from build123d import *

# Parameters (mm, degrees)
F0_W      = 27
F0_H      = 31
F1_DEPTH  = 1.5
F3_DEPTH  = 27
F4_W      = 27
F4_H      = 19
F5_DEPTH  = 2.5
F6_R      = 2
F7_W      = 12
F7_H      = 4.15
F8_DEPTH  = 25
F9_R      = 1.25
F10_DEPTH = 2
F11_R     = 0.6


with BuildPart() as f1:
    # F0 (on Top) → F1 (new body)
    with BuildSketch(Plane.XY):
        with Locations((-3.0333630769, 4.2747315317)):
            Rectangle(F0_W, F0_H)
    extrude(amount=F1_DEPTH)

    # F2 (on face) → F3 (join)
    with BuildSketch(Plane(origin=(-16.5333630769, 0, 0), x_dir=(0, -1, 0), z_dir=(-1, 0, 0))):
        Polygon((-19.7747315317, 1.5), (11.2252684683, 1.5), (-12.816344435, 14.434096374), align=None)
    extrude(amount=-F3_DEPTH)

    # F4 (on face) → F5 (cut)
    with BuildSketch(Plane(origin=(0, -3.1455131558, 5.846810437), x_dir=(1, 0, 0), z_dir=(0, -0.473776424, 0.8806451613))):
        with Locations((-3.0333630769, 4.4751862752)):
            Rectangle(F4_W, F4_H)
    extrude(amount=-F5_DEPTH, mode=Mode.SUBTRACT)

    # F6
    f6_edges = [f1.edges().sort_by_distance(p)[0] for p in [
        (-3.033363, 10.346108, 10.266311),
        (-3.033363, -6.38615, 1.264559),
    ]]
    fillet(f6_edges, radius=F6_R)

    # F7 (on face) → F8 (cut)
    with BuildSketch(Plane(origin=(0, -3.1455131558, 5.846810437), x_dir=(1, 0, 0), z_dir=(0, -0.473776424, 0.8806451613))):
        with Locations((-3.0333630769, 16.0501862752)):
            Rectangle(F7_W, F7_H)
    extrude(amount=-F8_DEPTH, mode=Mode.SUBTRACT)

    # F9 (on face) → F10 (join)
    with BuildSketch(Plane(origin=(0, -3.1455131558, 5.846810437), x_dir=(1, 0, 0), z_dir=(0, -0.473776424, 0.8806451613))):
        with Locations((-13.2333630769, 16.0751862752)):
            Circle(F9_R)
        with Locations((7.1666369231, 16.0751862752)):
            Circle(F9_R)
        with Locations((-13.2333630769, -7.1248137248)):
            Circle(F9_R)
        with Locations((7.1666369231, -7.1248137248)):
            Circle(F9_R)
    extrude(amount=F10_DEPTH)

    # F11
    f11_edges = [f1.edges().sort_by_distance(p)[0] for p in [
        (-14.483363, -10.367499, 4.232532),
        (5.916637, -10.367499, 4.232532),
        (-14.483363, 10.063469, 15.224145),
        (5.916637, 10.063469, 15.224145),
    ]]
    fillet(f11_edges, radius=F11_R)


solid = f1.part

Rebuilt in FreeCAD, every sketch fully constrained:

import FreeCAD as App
import Part
import Sketcher
from FreeCAD import Vector
Q = App.Units.Quantity


def edges_at(feature, points):
    """Names of the edges that pass closest to the given points."""
    edges = feature.Shape.Edges
    near = lambda p: min(range(len(edges)), key=lambda i: edges[i].distToShape(Part.Vertex(*p))[0])
    return sorted({f"Edge{near(p) + 1}" for p in points})

doc = App.newDocument("Part")
params = doc.addObject("Spreadsheet::Sheet", "Params")
for row, (alias, value) in enumerate([
    ("sketch1_width", "27 mm"),
    ("sketch1_height", "31 mm"),
    ("pad1_length", "1.5 mm"),
    ("sketch2_width", "31 mm"),
    ("sketch2_length", "27.3 mm"),
    ("pad2_length", "27 mm"),
    ("sketch3_width", "27 mm"),
    ("sketch3_height", "19 mm"),
    ("pocket1_length", "2.5 mm"),
    ("fillet_radius", "2 mm"),
    ("sketch4_width", "12 mm"),
    ("sketch4_height", "4.15 mm"),
    ("pocket2_length", "25 mm"),
    ("sketch5_diameter", "2.5 mm"),
    ("pad3_length", "2 mm"),
    ("fillet2_radius", "0.6 mm"),
], start=1):
    params.set(f"A{row}", alias)
    params.set(f"B{row}", "=" + value)
    params.setAlias(f"B{row}", alias)

body = doc.addObject("PartDesign::Body", "Body")

# Sketch on XY plane
sketch1 = body.newObject("Sketcher::SketchObject", "Sketch")
sketch1.AttachmentSupport = (doc.getObject("XY_Plane"), [""])
sketch1.MapMode = "FlatFace"
sketch1.addGeometry([
    Part.LineSegment(Vector(-17, 20, 0), Vector(-17, -11, 0)),
    Part.LineSegment(Vector(-17, -11, 0), Vector(10, -11, 0)),
    Part.LineSegment(Vector(10, -11, 0), Vector(10, 20, 0)),
    Part.LineSegment(Vector(10, 20, 0), Vector(-17, 20, 0)),
], False)
sketch1.addConstraint([
    Sketcher.Constraint("Coincident", 0, 2, 1, 1),
    Sketcher.Constraint("Coincident", 1, 2, 2, 1),
    Sketcher.Constraint("Coincident", 2, 2, 3, 1),
    Sketcher.Constraint("Coincident", 3, 2, 0, 1),
    Sketcher.Constraint("Vertical", 0),
    Sketcher.Constraint("Horizontal", 1),
    Sketcher.Constraint("Vertical", 2),
    Sketcher.Constraint("Horizontal", 3),
    Sketcher.Constraint("DistanceX", 1, 1, 1, 2, Q("27 mm")),
    Sketcher.Constraint("DistanceY", 0, 2, 0, 1, Q("31 mm")),
    Sketcher.Constraint("DistanceY", 0, 2, -1, 1, Q("11.225268 mm")),
    Sketcher.Constraint("DistanceX", 0, 2, -1, 1, Q("16.533363 mm")),
])
sketch1.setExpression("Constraints[8]", "Params.sketch1_width")
sketch1.setExpression("Constraints[9]", "Params.sketch1_height")
pad1 = body.newObject("PartDesign::Pad", "Pad")
pad1.Profile = sketch1
pad1.setExpression("Length", "Params.pad1_length")

# Sketch on YZ plane
sketch2 = body.newObject("Sketcher::SketchObject", "Sketch001")
sketch2.AttachmentSupport = (doc.getObject("YZ_Plane"), [""])
sketch2.MapMode = "FlatFace"
sketch2.AttachmentOffset = App.Placement(Vector(0, 0, -16.533363), App.Rotation())
sketch2.addGeometry([
    Part.LineSegment(Vector(20, 2, 0), Vector(-11, 2, 0)),
    Part.LineSegment(Vector(-11, 2, 0), Vector(13, 14, 0)),
    Part.LineSegment(Vector(13, 14, 0), Vector(20, 2, 0)),
], False)
sketch2.addConstraint([
    Sketcher.Constraint("Coincident", 0, 2, 1, 1),
    Sketcher.Constraint("Coincident", 1, 2, 2, 1),
    Sketcher.Constraint("Coincident", 2, 2, 0, 1),
    Sketcher.Constraint("Horizontal", 0),
    Sketcher.Constraint("Perpendicular", 1, 2),
    Sketcher.Constraint("DistanceX", 0, 2, 0, 1, Q("31 mm")),
    Sketcher.Constraint("Distance", 1, Q("27.3 mm")),
    Sketcher.Constraint("DistanceY", -1, 1, 0, 2, Q("1.5 mm")),
    Sketcher.Constraint("DistanceX", 0, 2, -1, 1, Q("11.225268 mm")),
])
sketch2.setExpression("Constraints[5]", "Params.sketch2_width")
sketch2.setExpression("Constraints[6]", "Params.sketch2_length")
pad2 = body.newObject("PartDesign::Pad", "Pad001")
pad2.Profile = sketch2
pad2.setExpression("Length", "Params.pad2_length")

# Sketch on an angled plane
sketch3 = body.newObject("Sketcher::SketchObject", "Sketch002")
sketch3.Placement = App.Placement(Vector(0, -3.145513, 5.84681), App.Rotation(Vector(1, 0, 0), Vector(0, 0.880645161, 0.473776424), Vector(0, -0.473776424, 0.880645161), "ZXY"))
sketch3.addGeometry([
    Part.LineSegment(Vector(-17, 14, 0), Vector(-17, -5, 0)),
    Part.LineSegment(Vector(-17, -5, 0), Vector(10, -5, 0)),
    Part.LineSegment(Vector(10, -5, 0), Vector(10, 14, 0)),
    Part.LineSegment(Vector(10, 14, 0), Vector(-17, 14, 0)),
], False)
sketch3.addConstraint([
    Sketcher.Constraint("Coincident", 0, 2, 1, 1),
    Sketcher.Constraint("Coincident", 1, 2, 2, 1),
    Sketcher.Constraint("Coincident", 2, 2, 3, 1),
    Sketcher.Constraint("Coincident", 3, 2, 0, 1),
    Sketcher.Constraint("Vertical", 0),
    Sketcher.Constraint("Horizontal", 1),
    Sketcher.Constraint("Vertical", 2),
    Sketcher.Constraint("Horizontal", 3),
    Sketcher.Constraint("DistanceX", 1, 1, 1, 2, Q("27 mm")),
    Sketcher.Constraint("DistanceY", 0, 2, 0, 1, Q("19 mm")),
    Sketcher.Constraint("DistanceX", 0, 2, -1, 1, Q("16.533363 mm")),
    Sketcher.Constraint("DistanceY", 0, 2, -1, 1, Q("5.024814 mm")),
])
sketch3.setExpression("Constraints[8]", "Params.sketch3_width")
sketch3.setExpression("Constraints[9]", "Params.sketch3_height")
pocket1 = body.newObject("PartDesign::Pocket", "Pocket")
pocket1.Profile = sketch3
pocket1.setExpression("Length", "Params.pocket1_length")
doc.recompute()

fillet = body.newObject("PartDesign::Fillet", "Fillet")
fillet.Base = (pocket1, edges_at(pocket1, [(-3.033, 10.346, 10.266), (-3.033, -6.386, 1.265)]))
fillet.setExpression("Radius", "Params.fillet_radius")

# Sketch on an angled plane
sketch4 = body.newObject("Sketcher::SketchObject", "Sketch003")
sketch4.Placement = App.Placement(Vector(0, -3.145513, 5.84681), App.Rotation(Vector(1, 0, 0), Vector(0, 0.880645161, 0.473776424), Vector(0, -0.473776424, 0.880645161), "ZXY"))
sketch4.addGeometry([
    Part.LineSegment(Vector(-9, 18.1, 0), Vector(-9, 14, 0)),
    Part.LineSegment(Vector(-9, 14, 0), Vector(3, 14, 0)),
    Part.LineSegment(Vector(3, 14, 0), Vector(3, 18.1, 0)),
    Part.LineSegment(Vector(3, 18.1, 0), Vector(-9, 18.1, 0)),
], False)
sketch4.addConstraint([
    Sketcher.Constraint("Coincident", 0, 2, 1, 1),
    Sketcher.Constraint("Coincident", 1, 2, 2, 1),
    Sketcher.Constraint("Coincident", 2, 2, 3, 1),
    Sketcher.Constraint("Coincident", 3, 2, 0, 1),
    Sketcher.Constraint("Vertical", 0),
    Sketcher.Constraint("Horizontal", 1),
    Sketcher.Constraint("Vertical", 2),
    Sketcher.Constraint("Horizontal", 3),
    Sketcher.Constraint("DistanceX", 1, 1, 1, 2, Q("12 mm")),
    Sketcher.Constraint("DistanceY", 0, 2, 0, 1, Q("4.15 mm")),
    Sketcher.Constraint("DistanceX", 0, 2, -1, 1, Q("9.033363 mm")),
    Sketcher.Constraint("DistanceY", -1, 1, 0, 2, Q("13.975186 mm")),
])
sketch4.setExpression("Constraints[8]", "Params.sketch4_width")
sketch4.setExpression("Constraints[9]", "Params.sketch4_height")
pocket2 = body.newObject("PartDesign::Pocket", "Pocket001")
pocket2.Profile = sketch4
pocket2.setExpression("Length", "Params.pocket2_length")

# Sketch on an angled plane
sketch5 = body.newObject("Sketcher::SketchObject", "Sketch004")
sketch5.Placement = App.Placement(Vector(0, -3.145513, 5.84681), App.Rotation(Vector(1, 0, 0), Vector(0, 0.880645161, 0.473776424), Vector(0, -0.473776424, 0.880645161), "ZXY"))
sketch5.addGeometry([
    Part.Circle(Vector(-13.2, 16.1, 0), Vector(0, 0, 1), 1.2),
    Part.Circle(Vector(7.2, 16.1, 0), Vector(0, 0, 1), 1.2),
    Part.Circle(Vector(-13.2, -7.1, 0), Vector(0, 0, 1), 1.2),
    Part.Circle(Vector(7.2, -7.1, 0), Vector(0, 0, 1), 1.2),
], False)
sketch5.addConstraint([
    Sketcher.Constraint("Equal", 0, 1),
    Sketcher.Constraint("Equal", 1, 2),
    Sketcher.Constraint("Equal", 2, 3),
    Sketcher.Constraint("Horizontal", 0, 3, 1, 3),
    Sketcher.Constraint("Horizontal", 2, 3, 3, 3),
    Sketcher.Constraint("Vertical", 0, 3, 2, 3),
    Sketcher.Constraint("Vertical", 1, 3, 3, 3),
    Sketcher.Constraint("Diameter", 0, Q("2.5 mm")),
    Sketcher.Constraint("DistanceX", 0, 3, 1, 3, Q("20.4 mm")),
    Sketcher.Constraint("DistanceY", 2, 3, 0, 3, Q("23.2 mm")),
    Sketcher.Constraint("DistanceX", 0, 3, -1, 1, Q("13.233363 mm")),
    Sketcher.Constraint("DistanceY", -1, 1, 0, 3, Q("16.075186 mm")),
])
sketch5.setExpression("Constraints[7]", "Params.sketch5_diameter")
pad3 = body.newObject("PartDesign::Pad", "Pad002")
pad3.Profile = sketch5
pad3.setExpression("Length", "Params.pad3_length")
doc.recompute()

fillet2 = body.newObject("PartDesign::Fillet", "Fillet001")
fillet2.Base = (pad3, edges_at(pad3, [
    (-14.483, -10.367, 4.233),
    (5.917, -10.367, 4.233),
    (-14.483, 10.063, 15.224),
    (5.917, 10.063, 15.224),
]))
fillet2.setExpression("Radius", "Params.fillet2_radius")

doc.recompute()
